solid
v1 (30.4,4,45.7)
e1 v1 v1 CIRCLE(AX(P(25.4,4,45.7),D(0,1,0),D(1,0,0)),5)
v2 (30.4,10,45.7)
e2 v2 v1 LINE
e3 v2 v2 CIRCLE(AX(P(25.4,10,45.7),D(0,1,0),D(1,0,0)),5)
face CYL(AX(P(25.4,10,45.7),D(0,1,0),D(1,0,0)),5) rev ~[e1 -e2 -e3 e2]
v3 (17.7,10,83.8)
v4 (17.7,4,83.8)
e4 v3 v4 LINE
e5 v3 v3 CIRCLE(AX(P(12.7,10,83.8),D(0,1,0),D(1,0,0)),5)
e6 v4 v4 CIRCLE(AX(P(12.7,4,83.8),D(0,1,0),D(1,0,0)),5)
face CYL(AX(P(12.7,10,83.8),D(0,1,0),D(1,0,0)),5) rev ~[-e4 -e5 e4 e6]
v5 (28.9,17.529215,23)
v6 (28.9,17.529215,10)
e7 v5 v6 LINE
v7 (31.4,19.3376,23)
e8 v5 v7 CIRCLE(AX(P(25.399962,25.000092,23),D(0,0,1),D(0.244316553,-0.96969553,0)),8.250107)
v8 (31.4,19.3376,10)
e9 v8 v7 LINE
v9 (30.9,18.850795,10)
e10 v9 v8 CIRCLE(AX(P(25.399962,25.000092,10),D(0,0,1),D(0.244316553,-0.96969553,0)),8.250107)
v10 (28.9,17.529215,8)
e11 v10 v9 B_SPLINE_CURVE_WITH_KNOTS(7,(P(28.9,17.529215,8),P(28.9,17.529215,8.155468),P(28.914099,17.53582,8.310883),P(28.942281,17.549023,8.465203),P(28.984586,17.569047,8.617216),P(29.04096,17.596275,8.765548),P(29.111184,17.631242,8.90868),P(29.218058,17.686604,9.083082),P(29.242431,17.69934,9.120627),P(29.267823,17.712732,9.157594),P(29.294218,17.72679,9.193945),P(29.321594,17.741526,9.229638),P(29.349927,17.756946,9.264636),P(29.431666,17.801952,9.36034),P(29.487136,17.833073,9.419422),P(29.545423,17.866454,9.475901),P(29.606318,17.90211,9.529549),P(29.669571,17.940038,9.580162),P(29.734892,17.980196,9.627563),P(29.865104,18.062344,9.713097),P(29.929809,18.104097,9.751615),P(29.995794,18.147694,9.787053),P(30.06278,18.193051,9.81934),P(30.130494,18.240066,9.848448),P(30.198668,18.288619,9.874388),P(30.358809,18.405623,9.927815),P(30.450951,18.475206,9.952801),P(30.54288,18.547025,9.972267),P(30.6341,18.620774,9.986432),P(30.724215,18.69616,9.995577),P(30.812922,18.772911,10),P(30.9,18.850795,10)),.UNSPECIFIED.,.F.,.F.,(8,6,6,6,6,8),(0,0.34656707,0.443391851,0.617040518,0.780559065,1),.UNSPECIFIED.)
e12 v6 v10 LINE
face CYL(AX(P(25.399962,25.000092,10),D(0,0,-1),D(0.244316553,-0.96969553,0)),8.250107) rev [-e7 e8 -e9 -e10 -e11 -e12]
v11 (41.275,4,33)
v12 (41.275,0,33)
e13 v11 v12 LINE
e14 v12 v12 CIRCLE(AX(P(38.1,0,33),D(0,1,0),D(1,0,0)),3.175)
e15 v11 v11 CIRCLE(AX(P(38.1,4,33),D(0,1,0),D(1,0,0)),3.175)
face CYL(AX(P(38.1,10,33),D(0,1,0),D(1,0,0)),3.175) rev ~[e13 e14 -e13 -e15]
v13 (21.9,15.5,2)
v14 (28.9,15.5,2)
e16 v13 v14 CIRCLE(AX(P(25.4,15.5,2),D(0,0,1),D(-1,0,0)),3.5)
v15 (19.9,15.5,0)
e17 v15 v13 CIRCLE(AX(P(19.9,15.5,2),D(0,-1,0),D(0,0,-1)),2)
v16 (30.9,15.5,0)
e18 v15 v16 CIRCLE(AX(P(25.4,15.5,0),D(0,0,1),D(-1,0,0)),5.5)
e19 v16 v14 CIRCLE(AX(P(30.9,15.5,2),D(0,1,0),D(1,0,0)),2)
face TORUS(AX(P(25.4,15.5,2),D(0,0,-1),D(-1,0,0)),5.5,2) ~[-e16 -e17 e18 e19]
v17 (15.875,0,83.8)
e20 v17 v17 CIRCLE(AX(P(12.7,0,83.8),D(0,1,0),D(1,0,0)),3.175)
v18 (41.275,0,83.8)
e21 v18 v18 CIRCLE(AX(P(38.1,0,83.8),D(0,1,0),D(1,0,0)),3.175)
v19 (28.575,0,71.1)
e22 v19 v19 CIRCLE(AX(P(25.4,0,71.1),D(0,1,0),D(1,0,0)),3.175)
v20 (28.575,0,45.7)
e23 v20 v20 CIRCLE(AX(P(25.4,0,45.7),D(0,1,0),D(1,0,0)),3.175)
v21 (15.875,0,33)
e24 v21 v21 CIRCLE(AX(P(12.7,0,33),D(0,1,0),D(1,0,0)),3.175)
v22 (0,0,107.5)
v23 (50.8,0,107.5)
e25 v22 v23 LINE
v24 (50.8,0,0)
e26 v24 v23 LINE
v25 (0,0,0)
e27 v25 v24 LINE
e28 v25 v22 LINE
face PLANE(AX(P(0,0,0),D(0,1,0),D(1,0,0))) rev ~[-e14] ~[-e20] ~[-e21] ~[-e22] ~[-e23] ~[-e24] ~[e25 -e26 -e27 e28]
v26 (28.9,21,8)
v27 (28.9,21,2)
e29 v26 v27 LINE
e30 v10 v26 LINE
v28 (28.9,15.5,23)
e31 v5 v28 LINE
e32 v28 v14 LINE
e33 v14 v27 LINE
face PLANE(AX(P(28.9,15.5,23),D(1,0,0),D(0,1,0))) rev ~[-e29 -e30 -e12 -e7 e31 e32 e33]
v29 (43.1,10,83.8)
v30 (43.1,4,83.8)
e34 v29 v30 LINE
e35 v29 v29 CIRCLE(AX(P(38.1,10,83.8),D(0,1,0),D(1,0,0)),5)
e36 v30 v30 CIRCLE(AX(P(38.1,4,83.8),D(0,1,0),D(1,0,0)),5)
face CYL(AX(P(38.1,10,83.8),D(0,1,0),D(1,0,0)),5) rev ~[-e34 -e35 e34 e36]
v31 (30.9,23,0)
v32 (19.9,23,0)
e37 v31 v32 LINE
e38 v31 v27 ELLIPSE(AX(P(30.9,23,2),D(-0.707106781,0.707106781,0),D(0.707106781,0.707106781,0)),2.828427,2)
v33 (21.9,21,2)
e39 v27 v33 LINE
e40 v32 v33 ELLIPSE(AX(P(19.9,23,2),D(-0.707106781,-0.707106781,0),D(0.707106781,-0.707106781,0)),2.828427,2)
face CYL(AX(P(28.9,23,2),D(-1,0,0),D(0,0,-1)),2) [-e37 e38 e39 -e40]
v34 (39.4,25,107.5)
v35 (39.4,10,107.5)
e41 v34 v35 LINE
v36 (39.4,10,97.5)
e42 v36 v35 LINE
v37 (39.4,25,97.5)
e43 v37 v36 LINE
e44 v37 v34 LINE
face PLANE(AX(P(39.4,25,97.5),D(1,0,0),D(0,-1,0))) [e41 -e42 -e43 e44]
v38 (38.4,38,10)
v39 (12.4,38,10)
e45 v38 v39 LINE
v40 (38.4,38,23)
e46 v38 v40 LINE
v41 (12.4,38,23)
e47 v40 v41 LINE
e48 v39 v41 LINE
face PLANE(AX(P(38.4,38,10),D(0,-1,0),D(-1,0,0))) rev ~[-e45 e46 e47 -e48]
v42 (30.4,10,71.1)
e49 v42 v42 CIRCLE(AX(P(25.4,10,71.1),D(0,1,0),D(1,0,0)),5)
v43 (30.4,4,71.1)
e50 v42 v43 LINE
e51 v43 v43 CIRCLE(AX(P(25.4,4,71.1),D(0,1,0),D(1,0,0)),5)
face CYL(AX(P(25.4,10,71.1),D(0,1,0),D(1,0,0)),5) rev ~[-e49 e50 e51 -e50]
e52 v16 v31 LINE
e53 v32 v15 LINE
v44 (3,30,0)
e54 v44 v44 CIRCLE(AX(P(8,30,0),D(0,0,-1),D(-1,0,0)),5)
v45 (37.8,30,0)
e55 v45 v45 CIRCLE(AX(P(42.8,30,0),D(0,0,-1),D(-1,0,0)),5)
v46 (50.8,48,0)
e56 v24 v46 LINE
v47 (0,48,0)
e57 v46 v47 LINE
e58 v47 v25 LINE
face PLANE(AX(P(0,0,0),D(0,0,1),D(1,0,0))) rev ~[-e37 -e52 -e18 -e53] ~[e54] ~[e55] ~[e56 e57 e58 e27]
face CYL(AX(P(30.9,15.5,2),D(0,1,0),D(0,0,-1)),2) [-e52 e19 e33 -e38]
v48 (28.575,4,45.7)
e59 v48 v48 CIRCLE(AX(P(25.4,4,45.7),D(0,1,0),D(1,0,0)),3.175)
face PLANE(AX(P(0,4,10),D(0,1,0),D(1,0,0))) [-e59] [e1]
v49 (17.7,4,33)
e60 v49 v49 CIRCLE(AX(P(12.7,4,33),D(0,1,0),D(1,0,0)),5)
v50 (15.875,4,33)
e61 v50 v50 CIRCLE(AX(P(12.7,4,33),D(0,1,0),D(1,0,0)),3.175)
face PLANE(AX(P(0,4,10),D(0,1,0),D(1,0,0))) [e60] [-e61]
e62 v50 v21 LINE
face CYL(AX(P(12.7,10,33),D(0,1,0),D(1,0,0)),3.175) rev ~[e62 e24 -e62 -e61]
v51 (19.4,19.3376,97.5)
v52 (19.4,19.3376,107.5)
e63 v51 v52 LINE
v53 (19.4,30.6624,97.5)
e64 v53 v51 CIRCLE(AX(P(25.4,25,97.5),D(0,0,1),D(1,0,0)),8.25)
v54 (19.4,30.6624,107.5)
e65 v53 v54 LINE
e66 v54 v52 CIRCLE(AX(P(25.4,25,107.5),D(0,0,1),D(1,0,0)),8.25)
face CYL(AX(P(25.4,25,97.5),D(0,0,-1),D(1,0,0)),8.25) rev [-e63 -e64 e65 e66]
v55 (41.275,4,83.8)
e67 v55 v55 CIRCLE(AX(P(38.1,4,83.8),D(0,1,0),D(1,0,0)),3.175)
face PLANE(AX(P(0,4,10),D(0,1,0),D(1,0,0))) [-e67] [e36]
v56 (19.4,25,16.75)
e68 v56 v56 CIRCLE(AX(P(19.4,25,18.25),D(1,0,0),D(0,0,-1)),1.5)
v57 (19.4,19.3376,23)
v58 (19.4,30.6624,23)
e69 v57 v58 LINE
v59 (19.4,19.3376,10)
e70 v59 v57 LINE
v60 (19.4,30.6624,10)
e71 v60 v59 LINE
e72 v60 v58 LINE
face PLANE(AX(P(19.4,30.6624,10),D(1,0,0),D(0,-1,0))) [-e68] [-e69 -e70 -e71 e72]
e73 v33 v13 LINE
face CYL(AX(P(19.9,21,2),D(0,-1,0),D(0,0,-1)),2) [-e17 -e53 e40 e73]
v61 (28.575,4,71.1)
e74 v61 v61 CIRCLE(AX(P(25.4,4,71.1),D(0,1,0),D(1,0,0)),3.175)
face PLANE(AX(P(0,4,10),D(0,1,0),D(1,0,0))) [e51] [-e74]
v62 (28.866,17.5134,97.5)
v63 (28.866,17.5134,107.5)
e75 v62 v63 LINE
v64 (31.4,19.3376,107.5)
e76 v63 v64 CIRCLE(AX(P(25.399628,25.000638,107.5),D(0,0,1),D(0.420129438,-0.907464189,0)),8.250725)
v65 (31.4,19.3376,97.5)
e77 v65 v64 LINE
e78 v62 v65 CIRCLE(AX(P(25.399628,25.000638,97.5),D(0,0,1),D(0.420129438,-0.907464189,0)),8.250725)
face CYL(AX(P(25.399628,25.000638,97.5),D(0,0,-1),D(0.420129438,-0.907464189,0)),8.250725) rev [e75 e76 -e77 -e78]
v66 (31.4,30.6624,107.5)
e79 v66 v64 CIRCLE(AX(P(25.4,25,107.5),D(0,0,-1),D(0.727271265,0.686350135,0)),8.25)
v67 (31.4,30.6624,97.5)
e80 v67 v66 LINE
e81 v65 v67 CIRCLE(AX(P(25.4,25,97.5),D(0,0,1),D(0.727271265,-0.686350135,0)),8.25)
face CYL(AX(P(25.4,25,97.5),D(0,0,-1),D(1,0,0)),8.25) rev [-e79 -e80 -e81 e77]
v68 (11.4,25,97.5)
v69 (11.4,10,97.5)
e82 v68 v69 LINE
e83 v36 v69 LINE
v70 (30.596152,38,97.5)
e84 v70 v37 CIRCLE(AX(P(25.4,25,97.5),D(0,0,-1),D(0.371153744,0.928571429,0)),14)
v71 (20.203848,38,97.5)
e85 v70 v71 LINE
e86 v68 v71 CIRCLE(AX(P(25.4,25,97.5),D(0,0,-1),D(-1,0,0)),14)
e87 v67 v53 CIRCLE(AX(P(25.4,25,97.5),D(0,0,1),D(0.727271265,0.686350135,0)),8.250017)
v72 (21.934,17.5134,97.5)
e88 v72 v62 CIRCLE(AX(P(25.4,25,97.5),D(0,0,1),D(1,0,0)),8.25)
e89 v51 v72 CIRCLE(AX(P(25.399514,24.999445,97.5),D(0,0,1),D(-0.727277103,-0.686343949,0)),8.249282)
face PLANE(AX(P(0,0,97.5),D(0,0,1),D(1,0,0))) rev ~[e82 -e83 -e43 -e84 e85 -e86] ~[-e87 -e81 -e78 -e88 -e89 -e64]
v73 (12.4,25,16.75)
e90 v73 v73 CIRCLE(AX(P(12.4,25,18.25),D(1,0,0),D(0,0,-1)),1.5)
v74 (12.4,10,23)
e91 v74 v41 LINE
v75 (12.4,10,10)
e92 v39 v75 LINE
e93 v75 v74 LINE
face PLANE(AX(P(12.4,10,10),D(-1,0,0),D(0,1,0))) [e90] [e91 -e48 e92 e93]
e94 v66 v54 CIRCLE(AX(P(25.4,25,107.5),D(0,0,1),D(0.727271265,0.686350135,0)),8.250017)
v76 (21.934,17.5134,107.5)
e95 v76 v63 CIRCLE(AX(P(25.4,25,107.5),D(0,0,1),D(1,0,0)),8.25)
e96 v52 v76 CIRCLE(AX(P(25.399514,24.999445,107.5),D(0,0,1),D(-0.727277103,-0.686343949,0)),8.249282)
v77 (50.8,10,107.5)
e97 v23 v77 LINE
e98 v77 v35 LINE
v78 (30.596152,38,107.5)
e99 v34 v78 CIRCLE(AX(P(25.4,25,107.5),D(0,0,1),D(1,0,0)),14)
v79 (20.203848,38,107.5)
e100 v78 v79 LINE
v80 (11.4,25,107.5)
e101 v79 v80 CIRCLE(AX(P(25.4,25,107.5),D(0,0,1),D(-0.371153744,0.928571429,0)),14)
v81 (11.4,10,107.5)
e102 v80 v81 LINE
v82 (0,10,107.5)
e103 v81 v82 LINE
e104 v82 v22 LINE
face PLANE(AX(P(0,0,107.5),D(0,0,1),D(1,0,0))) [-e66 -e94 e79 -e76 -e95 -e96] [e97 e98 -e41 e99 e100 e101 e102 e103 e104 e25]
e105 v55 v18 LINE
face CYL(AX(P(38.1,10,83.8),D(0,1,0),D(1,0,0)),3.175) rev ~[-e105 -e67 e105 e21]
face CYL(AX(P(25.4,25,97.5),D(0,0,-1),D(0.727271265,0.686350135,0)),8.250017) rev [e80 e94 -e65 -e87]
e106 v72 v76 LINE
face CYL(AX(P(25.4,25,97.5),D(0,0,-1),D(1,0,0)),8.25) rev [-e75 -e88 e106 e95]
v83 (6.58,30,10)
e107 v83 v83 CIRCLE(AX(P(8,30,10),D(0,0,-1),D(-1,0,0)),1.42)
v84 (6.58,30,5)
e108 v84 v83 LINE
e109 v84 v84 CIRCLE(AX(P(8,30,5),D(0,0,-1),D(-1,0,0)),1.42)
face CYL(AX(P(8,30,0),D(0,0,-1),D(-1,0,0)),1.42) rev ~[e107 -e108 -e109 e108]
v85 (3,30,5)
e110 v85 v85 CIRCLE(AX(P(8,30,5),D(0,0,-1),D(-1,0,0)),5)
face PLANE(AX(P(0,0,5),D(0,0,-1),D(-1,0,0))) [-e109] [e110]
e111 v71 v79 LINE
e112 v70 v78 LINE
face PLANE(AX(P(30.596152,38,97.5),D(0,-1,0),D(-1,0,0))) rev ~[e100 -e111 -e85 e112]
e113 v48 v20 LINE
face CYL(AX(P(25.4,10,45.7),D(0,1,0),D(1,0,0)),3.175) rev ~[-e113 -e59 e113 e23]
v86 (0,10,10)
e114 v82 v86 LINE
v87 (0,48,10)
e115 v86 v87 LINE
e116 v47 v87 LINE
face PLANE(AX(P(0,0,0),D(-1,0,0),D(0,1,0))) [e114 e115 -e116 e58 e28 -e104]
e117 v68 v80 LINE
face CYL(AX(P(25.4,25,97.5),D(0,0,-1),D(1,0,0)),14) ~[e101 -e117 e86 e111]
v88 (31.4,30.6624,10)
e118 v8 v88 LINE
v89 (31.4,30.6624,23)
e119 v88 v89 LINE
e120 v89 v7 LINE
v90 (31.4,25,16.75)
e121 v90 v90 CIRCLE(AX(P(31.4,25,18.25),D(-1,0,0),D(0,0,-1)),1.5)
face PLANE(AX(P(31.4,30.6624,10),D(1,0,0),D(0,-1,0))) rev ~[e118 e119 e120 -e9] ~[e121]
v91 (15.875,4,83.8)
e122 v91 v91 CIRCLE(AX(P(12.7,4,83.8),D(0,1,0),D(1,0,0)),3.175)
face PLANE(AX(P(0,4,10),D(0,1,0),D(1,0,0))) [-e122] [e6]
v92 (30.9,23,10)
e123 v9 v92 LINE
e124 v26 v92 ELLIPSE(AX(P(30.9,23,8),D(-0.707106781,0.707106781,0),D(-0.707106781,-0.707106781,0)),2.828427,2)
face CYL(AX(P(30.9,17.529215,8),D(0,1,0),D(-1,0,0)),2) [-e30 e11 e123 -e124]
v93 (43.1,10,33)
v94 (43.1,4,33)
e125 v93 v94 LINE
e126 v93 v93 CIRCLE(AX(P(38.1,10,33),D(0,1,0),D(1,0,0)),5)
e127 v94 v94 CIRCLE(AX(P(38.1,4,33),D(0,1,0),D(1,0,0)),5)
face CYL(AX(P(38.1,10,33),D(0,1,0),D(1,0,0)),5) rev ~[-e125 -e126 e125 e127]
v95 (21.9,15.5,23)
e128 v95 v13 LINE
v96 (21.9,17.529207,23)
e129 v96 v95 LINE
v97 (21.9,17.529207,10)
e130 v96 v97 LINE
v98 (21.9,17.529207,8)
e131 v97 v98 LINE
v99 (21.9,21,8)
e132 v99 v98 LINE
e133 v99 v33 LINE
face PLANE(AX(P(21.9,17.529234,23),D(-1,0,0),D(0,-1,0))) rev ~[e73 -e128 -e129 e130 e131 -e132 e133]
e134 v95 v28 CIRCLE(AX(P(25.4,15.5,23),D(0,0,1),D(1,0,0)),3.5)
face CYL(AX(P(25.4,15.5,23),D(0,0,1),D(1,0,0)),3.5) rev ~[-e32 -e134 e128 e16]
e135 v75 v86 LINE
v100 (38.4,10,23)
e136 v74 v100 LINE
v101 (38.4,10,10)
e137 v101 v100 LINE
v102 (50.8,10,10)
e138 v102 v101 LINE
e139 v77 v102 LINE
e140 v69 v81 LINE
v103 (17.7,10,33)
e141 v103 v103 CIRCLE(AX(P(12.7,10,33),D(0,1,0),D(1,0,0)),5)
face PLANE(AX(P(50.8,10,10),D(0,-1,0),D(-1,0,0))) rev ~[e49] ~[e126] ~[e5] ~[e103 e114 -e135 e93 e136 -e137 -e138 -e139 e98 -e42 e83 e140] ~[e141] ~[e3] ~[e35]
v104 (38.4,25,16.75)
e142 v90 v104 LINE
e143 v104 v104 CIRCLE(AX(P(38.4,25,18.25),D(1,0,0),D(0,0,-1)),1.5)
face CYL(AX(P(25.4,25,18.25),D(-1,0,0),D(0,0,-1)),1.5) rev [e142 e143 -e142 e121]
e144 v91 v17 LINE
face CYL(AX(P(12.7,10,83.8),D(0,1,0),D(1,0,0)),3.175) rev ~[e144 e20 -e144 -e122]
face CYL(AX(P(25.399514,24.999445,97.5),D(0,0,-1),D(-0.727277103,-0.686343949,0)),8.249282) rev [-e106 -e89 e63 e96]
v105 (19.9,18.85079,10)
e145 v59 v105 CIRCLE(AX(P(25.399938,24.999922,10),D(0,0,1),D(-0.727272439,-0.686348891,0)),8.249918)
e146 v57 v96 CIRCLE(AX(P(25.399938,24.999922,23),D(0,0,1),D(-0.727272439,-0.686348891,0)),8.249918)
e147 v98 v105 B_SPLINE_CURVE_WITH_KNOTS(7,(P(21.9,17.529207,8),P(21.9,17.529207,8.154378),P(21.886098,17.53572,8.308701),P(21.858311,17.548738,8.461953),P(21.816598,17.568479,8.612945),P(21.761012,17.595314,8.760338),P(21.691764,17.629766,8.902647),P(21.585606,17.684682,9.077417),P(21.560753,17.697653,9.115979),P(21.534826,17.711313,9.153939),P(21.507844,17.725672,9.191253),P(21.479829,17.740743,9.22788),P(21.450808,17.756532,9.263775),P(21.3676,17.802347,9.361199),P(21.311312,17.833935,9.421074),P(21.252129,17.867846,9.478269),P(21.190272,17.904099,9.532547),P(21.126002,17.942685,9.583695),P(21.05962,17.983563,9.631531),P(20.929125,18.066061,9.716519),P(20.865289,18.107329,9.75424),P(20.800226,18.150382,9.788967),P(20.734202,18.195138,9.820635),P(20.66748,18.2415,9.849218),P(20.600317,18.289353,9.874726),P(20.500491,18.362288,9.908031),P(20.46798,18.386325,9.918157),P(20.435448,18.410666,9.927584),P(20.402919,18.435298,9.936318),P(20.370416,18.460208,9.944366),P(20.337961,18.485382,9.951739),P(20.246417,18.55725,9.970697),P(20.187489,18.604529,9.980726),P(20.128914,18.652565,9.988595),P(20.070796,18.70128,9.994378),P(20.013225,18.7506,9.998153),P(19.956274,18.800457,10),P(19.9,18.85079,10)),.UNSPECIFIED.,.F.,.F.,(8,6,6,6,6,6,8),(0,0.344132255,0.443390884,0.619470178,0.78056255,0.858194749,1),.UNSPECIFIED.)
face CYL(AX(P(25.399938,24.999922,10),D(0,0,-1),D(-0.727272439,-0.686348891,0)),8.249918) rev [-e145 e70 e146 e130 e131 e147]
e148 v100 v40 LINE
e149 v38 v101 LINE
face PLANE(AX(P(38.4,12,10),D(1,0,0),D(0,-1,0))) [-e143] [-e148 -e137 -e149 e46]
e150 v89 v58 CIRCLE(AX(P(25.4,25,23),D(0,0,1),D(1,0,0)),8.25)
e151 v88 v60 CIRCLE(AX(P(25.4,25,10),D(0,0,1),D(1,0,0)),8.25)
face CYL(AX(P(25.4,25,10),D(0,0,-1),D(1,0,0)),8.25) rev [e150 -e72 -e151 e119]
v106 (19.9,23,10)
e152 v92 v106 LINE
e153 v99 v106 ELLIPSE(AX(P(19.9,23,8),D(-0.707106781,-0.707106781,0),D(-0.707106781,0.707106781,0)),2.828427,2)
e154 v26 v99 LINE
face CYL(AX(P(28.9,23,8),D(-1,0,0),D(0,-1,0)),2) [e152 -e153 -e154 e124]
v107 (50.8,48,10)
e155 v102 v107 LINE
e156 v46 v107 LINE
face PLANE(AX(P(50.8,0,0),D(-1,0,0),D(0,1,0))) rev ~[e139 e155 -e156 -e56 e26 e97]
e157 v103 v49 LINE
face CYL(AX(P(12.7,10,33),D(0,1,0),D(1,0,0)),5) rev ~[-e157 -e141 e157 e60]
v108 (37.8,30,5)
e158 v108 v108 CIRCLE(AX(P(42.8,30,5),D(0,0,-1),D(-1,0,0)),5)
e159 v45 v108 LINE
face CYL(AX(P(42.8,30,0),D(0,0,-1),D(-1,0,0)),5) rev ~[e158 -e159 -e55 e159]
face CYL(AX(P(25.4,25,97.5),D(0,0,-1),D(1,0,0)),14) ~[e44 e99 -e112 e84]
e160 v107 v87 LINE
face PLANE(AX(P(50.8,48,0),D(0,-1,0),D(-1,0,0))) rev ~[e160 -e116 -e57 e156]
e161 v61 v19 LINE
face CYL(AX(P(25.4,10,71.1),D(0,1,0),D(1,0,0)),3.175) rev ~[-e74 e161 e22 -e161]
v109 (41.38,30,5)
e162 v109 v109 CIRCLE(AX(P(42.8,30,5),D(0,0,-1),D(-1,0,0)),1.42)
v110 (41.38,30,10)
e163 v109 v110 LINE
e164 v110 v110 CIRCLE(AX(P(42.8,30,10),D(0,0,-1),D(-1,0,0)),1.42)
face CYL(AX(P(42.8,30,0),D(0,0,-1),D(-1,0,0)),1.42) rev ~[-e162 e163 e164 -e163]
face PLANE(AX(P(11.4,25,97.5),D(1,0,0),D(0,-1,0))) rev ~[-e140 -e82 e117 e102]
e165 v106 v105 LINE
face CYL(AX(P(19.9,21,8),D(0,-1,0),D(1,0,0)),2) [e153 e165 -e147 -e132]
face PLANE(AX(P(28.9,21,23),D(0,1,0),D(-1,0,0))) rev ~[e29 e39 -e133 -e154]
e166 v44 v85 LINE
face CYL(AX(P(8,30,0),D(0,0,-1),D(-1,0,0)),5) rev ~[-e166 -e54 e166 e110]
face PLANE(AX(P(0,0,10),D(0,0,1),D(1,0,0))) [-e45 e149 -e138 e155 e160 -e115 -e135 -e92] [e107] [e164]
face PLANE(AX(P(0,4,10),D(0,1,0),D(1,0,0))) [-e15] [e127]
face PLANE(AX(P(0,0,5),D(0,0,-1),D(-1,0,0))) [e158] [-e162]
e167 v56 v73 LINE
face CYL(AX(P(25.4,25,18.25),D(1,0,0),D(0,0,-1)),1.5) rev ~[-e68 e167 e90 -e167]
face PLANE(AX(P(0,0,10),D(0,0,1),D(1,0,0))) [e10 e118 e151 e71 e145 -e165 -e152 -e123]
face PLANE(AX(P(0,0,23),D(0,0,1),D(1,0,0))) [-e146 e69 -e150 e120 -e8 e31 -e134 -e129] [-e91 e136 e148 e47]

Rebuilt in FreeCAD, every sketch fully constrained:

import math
import FreeCAD as App
import Part
import Sketcher

V = App.Vector


def edges_at(feature, points):
    """Names of the edges that pass closest to the given points."""
    edges = feature.Shape.Edges
    near = lambda p: min(range(len(edges)), key=lambda i: edges[i].distToShape(Part.Vertex(*p))[0])
    return sorted({f"Edge{near(p) + 1}" for p in points})


def add_polygon(sketch, points):
    """Adds a closed chain of lines whose ends are joined by coincident constraints."""
    first, n = sketch.GeometryCount, len(points)
    for a, b in zip(points, points[1:] + points[:1]):
        sketch.addGeometry(Part.LineSegment(App.Vector(*a, 0), App.Vector(*b, 0)), False)
    for i in range(n):
        sketch.addConstraint(Sketcher.Constraint("Coincident", first + i, 2, first + (i + 1) % n, 1))

doc = App.newDocument("Part")
params = doc.addObject("Spreadsheet::Sheet", "Params")
for row, (alias, value) in enumerate([
    ("sketch1_width", "50.8 mm"),
    ("sketch1_height", "48 mm"),
    ("pad1_length", "10 mm"),
    ("sketch2_height", "10 mm"),
    ("sketch2_width", "50.8 mm"),
    ("pad2_length", "87.5 mm"),
    ("sketch3_radius", "3.5 mm"),
    ("sketch3_width", "26 mm"),
    ("sketch3_radius2", "8.25 mm"),
    ("sketch3_height", "28 mm"),
    ("pad3_length", "13 mm"),
    ("sketch4_diameter", "3 mm"),
    ("pocket1_length", "26 mm"),
    ("sketch5_diameter", "6.35 mm"),
    ("pocket2_length", "26 mm"),
    ("sketch6_diameter", "2.84 mm"),
    ("pocket3_length", "26 mm"),
    ("sketch7_radius", "14 mm"),
    ("sketch7_radius2", "8.25 mm"),
    ("sketch7_height", "10 mm"),
    ("sketch7_height2", "15 mm"),
    ("sketch7_width", "11.4 mm"),
    ("pad4_length", "10 mm"),
    ("sketch8_diameter", "10 mm"),
    ("sketch8_diameter2", "6.35 mm"),
    ("pocket4_length", "6 mm"),
    ("sketch9_diameter", "10 mm"),
    ("sketch9_diameter2", "2.84 mm"),
    ("pocket5_length", "5 mm"),
    ("sketch10_radius", "3.5 mm"),
    ("sketch10_height", "5.5 mm"),
    ("fillet_radius", "2 mm"),
], start=1):
    params.set(f"A{row}", alias)
    params.set(f"B{row}", "=" + value)
    params.setAlias(f"B{row}", alias)

body = doc.addObject("PartDesign::Body", "Body")

sketch1 = doc.addObject("Sketcher::SketchObject", "Sketch")
body.addObject(sketch1)
sketch1.AttachmentSupport = (doc.XY_Plane, [""])
sketch1.MapMode = "FlatFace"
add_polygon(sketch1, [(0, 48), (0, 0), (50.8, 0), (50.8, 48)])
sketch1.addConstraint(Sketcher.Constraint("Vertical", 0))
sketch1.addConstraint(Sketcher.Constraint("Horizontal", 1))
sketch1.addConstraint(Sketcher.Constraint("Vertical", 2))
sketch1.addConstraint(Sketcher.Constraint("Horizontal", 3))
sketch1.addConstraint(Sketcher.Constraint("Coincident", 0, 2, -1, 1))
sketch1.addConstraint(Sketcher.Constraint("DistanceX", 1, 1, 1, 2, 50.8))
sketch1.addConstraint(Sketcher.Constraint("DistanceY", 0, 2, 0, 1, 48.0))
sketch1.setExpression("Constraints[9]", "Params.sketch1_width")
sketch1.setExpression("Constraints[10]", "Params.sketch1_height")
pad1 = doc.addObject("PartDesign::Pad", "Pad")
body.addObject(pad1)
pad1.Profile = sketch1
pad1.setExpression("Length", "Params.pad1_length")

sketch2 = doc.addObject("Sketcher::SketchObject", "Sketch001")
body.addObject(sketch2)
sketch2.AttachmentSupport = (doc.XY_Plane, [""])
sketch2.MapMode = "FlatFace"
sketch2.AttachmentOffset = App.Placement(V(0, 0, 10), App.Rotation())
add_polygon(sketch2, [(50.8, 0), (50.8, 10), (0, 10), (0, 0)])
sketch2.addConstraint(Sketcher.Constraint("Vertical", 0))
sketch2.addConstraint(Sketcher.Constraint("Horizontal", 1))
sketch2.addConstraint(Sketcher.Constraint("Vertical", 2))
sketch2.addConstraint(Sketcher.Constraint("Horizontal", 3))
sketch2.addConstraint(Sketcher.Constraint("Coincident", 2, 2, -1, 1))
sketch2.addConstraint(Sketcher.Constraint("DistanceY", 0, 1, 0, 2, 10.0))
sketch2.addConstraint(Sketcher.Constraint("DistanceX", 1, 2, 1, 1, 50.8))
sketch2.setExpression("Constraints[9]", "Params.sketch2_height")
sketch2.setExpression("Constraints[10]", "Params.sketch2_width")
pad2 = doc.addObject("PartDesign::Pad", "Pad001")
body.addObject(pad2)
pad2.Profile = sketch2
pad2.setExpression("Length", "Params.pad2_length")

sketch3 = doc.addObject("Sketcher::SketchObject", "Sketch002")
body.addObject(sketch3)
sketch3.AttachmentSupport = (doc.XY_Plane, [""])
sketch3.MapMode = "FlatFace"
sketch3.AttachmentOffset = App.Placement(V(0, 0, 10), App.Rotation())
add_polygon(sketch3, [(12.4, 10), (38.4, 10), (38.4, 38), (12.4, 38)])
sketch3.addGeometry(Part.ArcOfCircle(Part.Circle(V(25.4, 25, 0), V(0, 0, 1), 8.25), math.radians(43.34188), math.radians(136.65812)), False)
sketch3.addGeometry(Part.LineSegment(V(31.4, 30.6624, 0), V(31.4, 19.3376, 0)), False)
sketch3.addGeometry(Part.ArcOfCircle(Part.Circle(V(25.4, 25, 0), V(0, 0, 1), 8.250017), math.radians(-65.157714), math.radians(-43.34188)), False)
sketch3.addGeometry(Part.ArcOfCircle(Part.Circle(V(25.4, 18, 0), V(0, 0, 1), 3.5), math.radians(-172.0081), math.radians(-7.991832)), False)
sketch3.addGeometry(Part.ArcOfCircle(Part.Circle(V(25.4, 25, 0), V(0, 0, 1), 8.25), math.radians(-136.65812), math.radians(-114.842271)), False)
sketch3.addGeometry(Part.LineSegment(V(19.4, 19.3376, 0), V(19.4, 30.6624, 0)), False)
sketch3.addConstraint(Sketcher.Constraint("Coincident", 4, 1, 5, 1))
sketch3.addConstraint(Sketcher.Constraint("Coincident", 5, 2, 6, 2))
sketch3.addConstraint(Sketcher.Constraint("Coincident", 6, 1, 7, 2))
sketch3.addConstraint(Sketcher.Constraint("Coincident", 7, 1, 8, 2))
sketch3.addConstraint(Sketcher.Constraint("Coincident", 8, 1, 9, 1))
sketch3.addConstraint(Sketcher.Constraint("Coincident", 9, 2, 4, 2))
sketch3.addConstraint(Sketcher.Constraint("Horizontal", 0))
sketch3.addConstraint(Sketcher.Constraint("Vertical", 1))
sketch3.addConstraint(Sketcher.Constraint("Horizontal", 2))
sketch3.addConstraint(Sketcher.Constraint("Vertical", 3))
sketch3.addConstraint(Sketcher.Constraint("Vertical", 5))
sketch3.addConstraint(Sketcher.Constraint("Vertical", 9))
sketch3.addConstraint(Sketcher.Constraint("Coincident", 6, 3, 4, 3))
sketch3.addConstraint(Sketcher.Constraint("Coincident", 8, 3, 4, 3))
sketch3.addConstraint(Sketcher.Constraint("Equal", 4, 6))
sketch3.addConstraint(Sketcher.Constraint("Equal", 6, 8))
sketch3.addConstraint(Sketcher.Constraint("Horizontal", 6, 1, 7, 1))
sketch3.addConstraint(Sketcher.Constraint("Horizontal", 5, 2, 8, 1))
sketch3.addConstraint(Sketcher.Constraint("Radius", 7, 3.5))
sketch3.addConstraint(Sketcher.Constraint("DistanceX", 0, 1, 0, 2, 26.0))
sketch3.addConstraint(Sketcher.Constraint("Radius", 4, 8.25))
sketch3.addConstraint(Sketcher.Constraint("DistanceY", -1, 1, 0, 2, 10.0))
sketch3.addConstraint(Sketcher.Constraint("DistanceY", 7, 3, 4, 3, 7.0))
sketch3.addConstraint(Sketcher.Constraint("DistanceX", 4, 1, 1, 2, 7.0))
sketch3.addConstraint(Sketcher.Constraint("DistanceX", 2, 2, 9, 2, 7.0))
sketch3.addConstraint(Sketcher.Constraint("DistanceY", 1, 1, 1, 2, 28.0))
sketch3.addConstraint(Sketcher.Constraint("DistanceY", -1, 1, 4, 3, 25.0))
sketch3.addConstraint(Sketcher.Constraint("DistanceX", -1, 1, 4, 3, 25.4))
sketch3.setExpression("Constraints[22]", "Params.sketch3_radius")
sketch3.setExpression("Constraints[23]", "Params.sketch3_width")
sketch3.setExpression("Constraints[24]", "Params.sketch3_radius2")
sketch3.setExpression("Constraints[29]", "Params.sketch3_height")
pad3 = doc.addObject("PartDesign::Pad", "Pad002")
body.addObject(pad3)
pad3.Profile = sketch3
pad3.setExpression("Length", "Params.pad3_length")

sketch4 = doc.addObject("Sketcher::SketchObject", "Sketch003")
body.addObject(sketch4)
sketch4.AttachmentSupport = (doc.YZ_Plane, [""])
sketch4.MapMode = "FlatFace"
sketch4.AttachmentOffset = App.Placement(V(0, 0, 25.4), App.Rotation())
sketch4.addGeometry(Part.Circle(V(25, 18.25, 0), V(0, 0, 1), 1.5), False)
sketch4.addConstraint(Sketcher.Constraint("Diameter", 0, 3.0))
sketch4.addConstraint(Sketcher.Constraint("DistanceX", -1, 1, 0, 3, 25.0))
sketch4.addConstraint(Sketcher.Constraint("DistanceY", -1, 1, 0, 3, 18.25))
sketch4.setExpression("Constraints[0]", "Params.sketch4_diameter")
pocket1 = doc.addObject("PartDesign::Pocket", "Pocket")
body.addObject(pocket1)
pocket1.Profile = sketch4
pocket1.setExpression("Length", "Params.pocket1_length")
pocket1.Midplane = True

sketch5 = doc.addObject("Sketcher::SketchObject", "Sketch004")
body.addObject(sketch5)
sketch5.AttachmentSupport = (doc.XZ_Plane, [""])
sketch5.MapMode = "FlatFace"
sketch5.AttachmentOffset = App.Placement(V(0, 0, -10), App.Rotation())
sketch5.addGeometry(Part.Circle(V(25.4, 45.7, 0), V(0, 0, 1), 3.175), False)
sketch5.addGeometry(Part.Circle(V(12.7, 33, 0), V(0, 0, 1), 3.175), False)
sketch5.addGeometry(Part.Circle(V(38.1, 33, 0), V(0, 0, 1), 3.175), False)
sketch5.addGeometry(Part.Circle(V(25.4, 71.1, 0), V(0, 0, 1), 3.175), False)
sketch5.addGeometry(Part.Circle(V(12.7, 83.8, 0), V(0, 0, 1), 3.175), False)
sketch5.addGeometry(Part.Circle(V(38.1, 83.8, 0), V(0, 0, 1), 3.175), False)
sketch5.addConstraint(Sketcher.Constraint("Equal", 0, 1))
sketch5.addConstraint(Sketcher.Constraint("Equal", 1, 2))
sketch5.addConstraint(Sketcher.Constraint("Equal", 2, 3))
sketch5.addConstraint(Sketcher.Constraint("Equal", 3, 4))
sketch5.addConstraint(Sketcher.Constraint("Equal", 4, 5))
sketch5.addConstraint(Sketcher.Constraint("Horizontal", 1, 3, 2, 3))
sketch5.addConstraint(Sketcher.Constraint("Horizontal", 4, 3, 5, 3))
sketch5.addConstraint(Sketcher.Constraint("Vertical", 0, 3, 3, 3))
sketch5.addConstraint(Sketcher.Constraint("Vertical", 1, 3, 4, 3))
sketch5.addConstraint(Sketcher.Constraint("Vertical", 2, 3, 5, 3))
sketch5.addConstraint(Sketcher.Constraint("Diameter", 0, 6.35))
sketch5.addConstraint(Sketcher.Constraint("DistanceX", -1, 1, 1, 3, 12.7))
sketch5.addConstraint(Sketcher.Constraint("DistanceX", 1, 3, 0, 3, 12.7))
sketch5.addConstraint(Sketcher.Constraint("DistanceY", 1, 3, 0, 3, 12.7))
sketch5.addConstraint(Sketcher.Constraint("DistanceX", 0, 3, 2, 3, 12.7))
sketch5.addConstraint(Sketcher.Constraint("DistanceY", 3, 3, 4, 3, 12.7))
sketch5.addConstraint(Sketcher.Constraint("DistanceY", -1, 1, 1, 3, 33.0))
sketch5.addConstraint(Sketcher.Constraint("DistanceY", -1, 1, 3, 3, 71.1))
sketch5.setExpression("Constraints[10]", "Params.sketch5_diameter")
pocket2 = doc.addObject("PartDesign::Pocket", "Pocket001")
body.addObject(pocket2)
pocket2.Profile = sketch5
pocket2.setExpression("Length", "Params.pocket2_length")
pocket2.Reversed = True

sketch6 = doc.addObject("Sketcher::SketchObject", "Sketch005")
body.addObject(sketch6)
sketch6.AttachmentSupport = (doc.XY_Plane, [""])
sketch6.MapMode = "FlatFace"
sketch6.addGeometry(Part.Circle(V(42.8, 30, 0), V(0, 0, 1), 1.42), False)
sketch6.addGeometry(Part.Circle(V(8, 30, 0), V(0, 0, 1), 1.42), False)
sketch6.addConstraint(Sketcher.Constraint("Equal", 0, 1))
sketch6.addConstraint(Sketcher.Constraint("Horizontal", 0, 3, 1, 3))
sketch6.addConstraint(Sketcher.Constraint("Diameter", 0, 2.84))
sketch6.addConstraint(Sketcher.Constraint("DistanceX", -1, 1, 1, 3, 8.0))
sketch6.addConstraint(Sketcher.Constraint("DistanceY", -1, 1, 0, 3, 30.0))
sketch6.addConstraint(Sketcher.Constraint("DistanceX", -1, 1, 0, 3, 42.8))
sketch6.setExpression("Constraints[2]", "Params.sketch6_diameter")
pocket3 = doc.addObject("PartDesign::Pocket", "Pocket002")
body.addObject(pocket3)
pocket3.Profile = sketch6
pocket3.setExpression("Length", "Params.pocket3_length")
pocket3.Reversed = True

sketch7 = doc.addObject("Sketcher::SketchObject", "Sketch006")
body.addObject(sketch7)
sketch7.AttachmentSupport = (doc.XY_Plane, [""])
sketch7.MapMode = "FlatFace"
sketch7.AttachmentOffset = App.Placement(V(0, 0, 97.5), App.Rotation())
sketch7.addGeometry(Part.LineSegment(V(11.4, 10, 0), V(0, 10, 0)), False)
sketch7.addGeometry(Part.LineSegment(V(0, 10, 0), V(0, 0, 0)), False)
sketch7.addGeometry(Part.LineSegment(V(0, 0, 0), V(50.8, 0, 0)), False)
sketch7.addGeometry(Part.LineSegment(V(50.8, 0, 0), V(50.8, 10, 0)), False)
sketch7.addGeometry(Part.LineSegment(V(50.8, 10, 0), V(39.4, 10, 0)), False)
sketch7.addGeometry(Part.LineSegment(V(39.4, 10, 0), V(39.4, 25, 0)), False)
sketch7.addGeometry(Part.ArcOfCircle(Part.Circle(V(25.4, 25, 0), V(0, 0, 1), 14), math.radians(0), math.radians(68.213211)), False)
sketch7.addGeometry(Part.LineSegment(V(30.596152, 38, 0), V(20.203848, 38, 0)), False)
sketch7.addGeometry(Part.ArcOfCircle(Part.Circle(V(25.4, 25, 0), V(0, 0, 1), 14), math.radians(111.786789), math.radians(180)), False)
sketch7.addGeometry(Part.LineSegment(V(11.4, 25, 0), V(11.4, 10, 0)), False)
sketch7.addGeometry(Part.ArcOfCircle(Part.Circle(V(25.4, 25, 0), V(0, 0, 1), 8.250017), math.radians(-65.157728), math.radians(-43.34188)), False)
sketch7.addGeometry(Part.ArcOfCircle(Part.Circle(V(25.4, 25, 0), V(0, 0, 1), 8.25), math.radians(-114.842272), math.radians(-65.157728)), False)
sketch7.addGeometry(Part.ArcOfCircle(Part.Circle(V(25.4, 25, 0), V(0, 0, 1), 8.24999), math.radians(-136.65812), math.radians(-114.842272)), False)
sketch7.addGeometry(Part.ArcOfCircle(Part.Circle(V(25.4, 25, 0), V(0, 0, 1), 8.25), math.radians(-43.34188), math.radians(223.34188)), False)
sketch7.addConstraint(Sketcher.Constraint("Coincident", 0, 2, 1, 1))
sketch7.addConstraint(Sketcher.Constraint("Coincident", 1, 2, 2, 1))
sketch7.addConstraint(Sketcher.Constraint("Coincident", 2, 2, 3, 1))
sketch7.addConstraint(Sketcher.Constraint("Coincident", 3, 2, 4, 1))
sketch7.addConstraint(Sketcher.Constraint("Coincident", 4, 2, 5, 1))
sketch7.addConstraint(Sketcher.Constraint("Tangent", 5, 2, 6, 1))
sketch7.addConstraint(Sketcher.Constraint("Coincident", 6, 2, 7, 1))
sketch7.addConstraint(Sketcher.Constraint("Coincident", 7, 2, 8, 1))
sketch7.addConstraint(Sketcher.Constraint("Tangent", 8, 2, 9, 1))
sketch7.addConstraint(Sketcher.Constraint("Coincident", 9, 2, 0, 1))
sketch7.addConstraint(Sketcher.Constraint("Tangent", 10, 1, 11, 2))
sketch7.addConstraint(Sketcher.Constraint("Tangent", 11, 1, 12, 2))
sketch7.addConstraint(Sketcher.Constraint("Tangent", 12, 1, 13, 2))
sketch7.addConstraint(Sketcher.Constraint("Tangent", 13, 1, 10, 2))
sketch7.addConstraint(Sketcher.Constraint("Horizontal", 0))
sketch7.addConstraint(Sketcher.Constraint("Vertical", 1))
sketch7.addConstraint(Sketcher.Constraint("Horizontal", 2))
sketch7.addConstraint(Sketcher.Constraint("Vertical", 3))
sketch7.addConstraint(Sketcher.Constraint("Horizontal", 4))
sketch7.addConstraint(Sketcher.Constraint("Vertical", 5))
sketch7.addConstraint(Sketcher.Constraint("Horizontal", 7))
sketch7.addConstraint(Sketcher.Constraint("Vertical", 9))
sketch7.addConstraint(Sketcher.Constraint("Coincident", 1, 2, -1, 1))
sketch7.addConstraint(Sketcher.Constraint("Coincident", 8, 3, 6, 3))
sketch7.addConstraint(Sketcher.Constraint("Coincident", 10, 3, 6, 3))
sketch7.addConstraint(Sketcher.Constraint("Equal", 6, 8))
sketch7.addConstraint(Sketcher.Constraint("Equal", 10, 11))
sketch7.addConstraint(Sketcher.Constraint("Horizontal", 0, 2, 3, 2))
sketch7.addConstraint(Sketcher.Constraint("Horizontal", 10, 1, 11, 1))
sketch7.addConstraint(Sketcher.Constraint("Horizontal", 12, 1, 13, 1))
sketch7.addConstraint(Sketcher.Constraint("Equal", 0, 4))
sketch7.addConstraint(Sketcher.Constraint("Radius", 6, 14.0))
sketch7.addConstraint(Sketcher.Constraint("Radius", 10, 8.25))
sketch7.addConstraint(Sketcher.Constraint("DistanceX", 12, 1, 6, 3, 6.0))
sketch7.addConstraint(Sketcher.Constraint("DistanceY", 1, 2, 1, 1, 10.0))
sketch7.addConstraint(Sketcher.Constraint("DistanceY", 5, 1, 5, 2, 15.0))
sketch7.addConstraint(Sketcher.Constraint("DistanceX", 0, 2, 0, 1, 11.4))
sketch7.addConstraint(Sketcher.Constraint("DistanceY", -1, 1, 6, 2, 38.0))
sketch7.addConstraint(Sketcher.Constraint("DistanceX", -1, 1, 10, 1, 28.866))
sketch7.setExpression("Constraints[31]", "Params.sketch7_radius")
sketch7.setExpression("Constraints[32]", "Params.sketch7_radius2")
sketch7.setExpression("Constraints[34]", "Params.sketch7_height")
sketch7.setExpression("Constraints[35]", "Params.sketch7_height2")
sketch7.setExpression("Constraints[36]", "Params.sketch7_width")
pad4 = doc.addObject("PartDesign::Pad", "Pad003")
body.addObject(pad4)
pad4.Profile = sketch7
pad4.setExpression("Length", "Params.pad4_length")

sketch8 = doc.addObject("Sketcher::SketchObject", "Sketch007")
body.addObject(sketch8)
sketch8.AttachmentSupport = (doc.XZ_Plane, [""])
sketch8.MapMode = "FlatFace"
sketch8.AttachmentOffset = App.Placement(V(0, 0, -10), App.Rotation())
sketch8.addGeometry(Part.Circle(V(25.4, 71.1, 0), V(0, 0, 1), 5), False)
sketch8.addGeometry(Part.Circle(V(25.4, 45.7, 0), V(0, 0, 1), 5), False)
sketch8.addGeometry(Part.Circle(V(25.4, 45.7, 0), V(0, 0, 1), 3.175), False)
sketch8.addGeometry(Part.Circle(V(12.7, 33, 0), V(0, 0, 1), 5), False)
sketch8.addGeometry(Part.Circle(V(12.7, 33, 0), V(0, 0, 1), 3.175), False)
sketch8.addGeometry(Part.Circle(V(38.1, 33, 0), V(0, 0, 1), 5), False)
sketch8.addGeometry(Part.Circle(V(38.1, 33, 0), V(0, 0, 1), 3.175), False)
sketch8.addGeometry(Part.Circle(V(12.7, 83.8, 0), V(0, 0, 1), 5), False)
sketch8.addGeometry(Part.Circle(V(12.7, 83.8, 0), V(0, 0, 1), 3.175), False)
sketch8.addGeometry(Part.Circle(V(38.1, 83.8, 0), V(0, 0, 1), 5), False)
sketch8.addGeometry(Part.Circle(V(38.1, 83.8, 0), V(0, 0, 1), 3.175), False)
sketch8.addConstraint(Sketcher.Constraint("Coincident", 2, 3, 1, 3))
sketch8.addConstraint(Sketcher.Constraint("Coincident", 4, 3, 3, 3))
sketch8.addConstraint(Sketcher.Constraint("Coincident", 6, 3, 5, 3))
sketch8.addConstraint(Sketcher.Constraint("Coincident", 8, 3, 7, 3))
sketch8.addConstraint(Sketcher.Constraint("Coincident", 10, 3, 9, 3))
sketch8.addConstraint(Sketcher.Constraint("Equal", 0, 1))
sketch8.addConstraint(Sketcher.Constraint("Equal", 1, 3))
sketch8.addConstraint(Sketcher.Constraint("Equal", 2, 4))
sketch8.addConstraint(Sketcher.Constraint("Equal", 3, 5))
sketch8.addConstraint(Sketcher.Constraint("Equal", 4, 6))
sketch8.addConstraint(Sketcher.Constraint("Equal", 5, 7))
sketch8.addConstraint(Sketcher.Constraint("Equal", 6, 8))
sketch8.addConstraint(Sketcher.Constraint("Equal", 7, 9))
sketch8.addConstraint(Sketcher.Constraint("Equal", 8, 10))
sketch8.addConstraint(Sketcher.Constraint("Horizontal", 4, 3, 5, 3))
sketch8.addConstraint(Sketcher.Constraint("Horizontal", 8, 3, 9, 3))
sketch8.addConstraint(Sketcher.Constraint("Vertical", 0, 3, 1, 3))
sketch8.addConstraint(Sketcher.Constraint("Vertical", 4, 3, 7, 3))
sketch8.addConstraint(Sketcher.Constraint("Vertical", 6, 3, 9, 3))
sketch8.addConstraint(Sketcher.Constraint("Diameter", 0, 10.0))
sketch8.addConstraint(Sketcher.Constraint("Diameter", 2, 6.35))
sketch8.addConstraint(Sketcher.Constraint("DistanceY", -1, 1, 3, 3, 33.0))
sketch8.addConstraint(Sketcher.Constraint("DistanceX", -1, 1, 0, 3, 25.4))
sketch8.addConstraint(Sketcher.Constraint("DistanceY", -1, 1, 0, 3, 71.1))
sketch8.addConstraint(Sketcher.Constraint("DistanceY", -1, 1, 1, 3, 45.7))
sketch8.addConstraint(Sketcher.Constraint("DistanceX", -1, 1, 3, 3, 12.7))
sketch8.addConstraint(Sketcher.Constraint("DistanceX", -1, 1, 5, 3, 38.1))
sketch8.addConstraint(Sketcher.Constraint("DistanceY", -1, 1, 7, 3, 83.8))
sketch8.setExpression("Constraints[19]", "Params.sketch8_diameter")
sketch8.setExpression("Constraints[20]", "Params.sketch8_diameter2")
pocket4 = doc.addObject("PartDesign::Pocket", "Pocket003")
body.addObject(pocket4)
pocket4.Profile = sketch8
pocket4.setExpression("Length", "Params.pocket4_length")
pocket4.Reversed = True

sketch9 = doc.addObject("Sketcher::SketchObject", "Sketch008")
body.addObject(sketch9)
sketch9.AttachmentSupport = (doc.XY_Plane, [""])
sketch9.MapMode = "FlatFace"
sketch9.addGeometry(Part.Circle(V(42.8, 30, 0), V(0, 0, 1), 5), False)
sketch9.addGeometry(Part.Circle(V(8, 30, 0), V(0, 0, 1), 5), False)
sketch9.addGeometry(Part.Circle(V(8, 30, 0), V(0, 0, 1), 1.42), False)
sketch9.addConstraint(Sketcher.Constraint("Coincident", 2, 3, 1, 3))
sketch9.addConstraint(Sketcher.Constraint("Equal", 0, 1))
sketch9.addConstraint(Sketcher.Constraint("Horizontal", 0, 3, 1, 3))
sketch9.addConstraint(Sketcher.Constraint("Diameter", 0, 10.0))
sketch9.addConstraint(Sketcher.Constraint("Diameter", 2, 2.84))
sketch9.addConstraint(Sketcher.Constraint("DistanceY", -1, 1, 0, 3, 30.0))
sketch9.addConstraint(Sketcher.Constraint("DistanceX", -1, 1, 1, 3, 8.0))
sketch9.addConstraint(Sketcher.Constraint("DistanceX", -1, 1, 0, 3, 42.8))
sketch9.setExpression("Constraints[3]", "Params.sketch9_diameter")
sketch9.setExpression("Constraints[4]", "Params.sketch9_diameter2")
pocket5 = doc.addObject("PartDesign::Pocket", "Pocket004")
body.addObject(pocket5)
pocket5.Profile = sketch9
pocket5.setExpression("Length", "Params.pocket5_length")
pocket5.Reversed = True

sketch10 = doc.addObject("Sketcher::SketchObject", "Sketch009")
body.addObject(sketch10)
sketch10.AttachmentSupport = (doc.XY_Plane, [""])
sketch10.MapMode = "FlatFace"
sketch10.AttachmentOffset = App.Placement(V(0, 0, 23), App.Rotation())
sketch10.addGeometry(Part.LineSegment(V(28.9, 15.5, 0), V(28.9, 21, 0)), False)
sketch10.addGeometry(Part.LineSegment(V(28.9, 21, 0), V(21.9, 21, 0)), False)
sketch10.addGeometry(Part.LineSegment(V(21.9, 21, 0), V(21.9, 15.5, 0)), False)
sketch10.addGeometry(Part.ArcOfCircle(Part.Circle(V(25.4, 15.5, 0), V(0, 0, 1), 3.5), math.radians(180), math.radians(360)), False)
sketch10.addConstraint(Sketcher.Constraint("Coincident", 0, 2, 1, 1))
sketch10.addConstraint(Sketcher.Constraint("Coincident", 1, 2, 2, 1))
sketch10.addConstraint(Sketcher.Constraint("Tangent", 2, 2, 3, 1))
sketch10.addConstraint(Sketcher.Constraint("Tangent", 3, 2, 0, 1))
sketch10.addConstraint(Sketcher.Constraint("Vertical", 0))
sketch10.addConstraint(Sketcher.Constraint("Horizontal", 1))
sketch10.addConstraint(Sketcher.Constraint("Vertical", 2))
sketch10.addConstraint(Sketcher.Constraint("Radius", 3, 3.5))
sketch10.addConstraint(Sketcher.Constraint("DistanceY", 0, 1, 0, 2, 5.5))
sketch10.addConstraint(Sketcher.Constraint("DistanceY", -1, 1, 0, 2, 21.0))
sketch10.addConstraint(Sketcher.Constraint("DistanceX", -1, 1, 3, 3, 25.4))
sketch10.setExpression("Constraints[7]", "Params.sketch10_radius")
sketch10.setExpression("Constraints[8]", "Params.sketch10_height")
pocket6 = doc.addObject("PartDesign::Pocket", "Pocket005")
body.addObject(pocket6)
pocket6.Profile = sketch10
pocket6.Type = "ThroughAll"
doc.recompute()

fillet = doc.addObject("PartDesign::Fillet", "Fillet")
body.addObject(fillet)
fillet.Base = (pocket6, edges_at(pocket6, [
    (25.4, 21, 10),
    (21.9, 19.265, 10),
    (28.9, 19.265, 10),
    (28.9, 18.25, 0),
    (21.9, 18.25, 0),
    (25.4, 12, 0),
    (25.4, 21, 0),
]))
fillet.setExpression("Radius", "Params.fillet_radius")

doc.recompute()
